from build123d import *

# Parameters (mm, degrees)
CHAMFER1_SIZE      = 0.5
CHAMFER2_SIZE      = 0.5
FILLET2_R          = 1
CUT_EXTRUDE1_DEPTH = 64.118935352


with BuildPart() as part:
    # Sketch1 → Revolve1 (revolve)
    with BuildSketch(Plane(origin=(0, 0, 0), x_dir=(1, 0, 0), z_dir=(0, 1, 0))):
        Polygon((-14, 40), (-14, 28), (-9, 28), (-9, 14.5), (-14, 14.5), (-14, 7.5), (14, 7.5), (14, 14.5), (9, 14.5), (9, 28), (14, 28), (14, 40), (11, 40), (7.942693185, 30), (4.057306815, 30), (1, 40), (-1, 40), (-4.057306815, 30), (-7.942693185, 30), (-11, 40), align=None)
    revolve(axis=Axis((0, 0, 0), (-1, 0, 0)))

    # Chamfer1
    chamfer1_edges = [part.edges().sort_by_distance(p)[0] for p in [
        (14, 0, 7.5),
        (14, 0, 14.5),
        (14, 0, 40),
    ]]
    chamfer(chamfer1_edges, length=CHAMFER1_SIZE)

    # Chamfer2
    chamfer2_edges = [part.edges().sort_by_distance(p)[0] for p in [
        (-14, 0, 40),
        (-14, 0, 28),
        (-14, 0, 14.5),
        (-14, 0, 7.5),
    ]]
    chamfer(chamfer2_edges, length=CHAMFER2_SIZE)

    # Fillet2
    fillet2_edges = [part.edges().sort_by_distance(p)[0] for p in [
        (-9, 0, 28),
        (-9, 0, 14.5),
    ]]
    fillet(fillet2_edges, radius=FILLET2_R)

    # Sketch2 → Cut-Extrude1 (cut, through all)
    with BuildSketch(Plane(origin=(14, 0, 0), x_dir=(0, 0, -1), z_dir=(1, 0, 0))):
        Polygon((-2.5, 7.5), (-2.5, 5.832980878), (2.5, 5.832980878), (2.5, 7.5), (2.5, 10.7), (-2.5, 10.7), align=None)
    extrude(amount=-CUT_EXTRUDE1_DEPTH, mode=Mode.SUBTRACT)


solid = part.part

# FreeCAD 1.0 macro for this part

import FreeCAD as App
import Part
import Sketcher
from FreeCAD import Vector
Q = App.Units.Quantity


def edges_at(feature, points):
    """Names of the edges that pass closest to the given points."""
    edges = feature.Shape.Edges
    near = lambda p: min(range(len(edges)), key=lambda i: edges[i].distToShape(Part.Vertex(*p))[0])
    return sorted({f"Edge{near(p) + 1}" for p in points})


def add_polygon(sketch, points):
    """Adds a closed chain of lines whose ends are joined by coincident constraints."""
    first, n = sketch.GeometryCount, len(points)
    for a, b in zip(points, points[1:] + points[:1]):
        sketch.addGeometry(Part.LineSegment(App.Vector(*a, 0), App.Vector(*b, 0)), False)
    for i in range(n):
        sketch.addConstraint(Sketcher.Constraint("Coincident", first + i, 2, first + (i + 1) % n, 1))

doc = App.newDocument("Part")
body = doc.addObject("PartDesign::Body", "Body")

# Sketch on XZ plane
sketch1 = doc.addObject("Sketcher::SketchObject", "Sketch")
body.addObject(sketch1)
sketch1.AttachmentSupport = (doc.XZ_Plane, [""])
sketch1.MapMode = "FlatFace"
add_polygon(sketch1, [(-14, -40), (-14, -28), (-9, -28), (-9, -14.5), (-14, -14.5), (-14, -7.5), (14, -7.5), (14, -14.5), (9, -14.5), (9, -28), (14, -28), (14, -40), (11, -40), (7.9, -30), (4.1, -30), (1, -40), (-1, -40), (-4.1, -30), (-7.9, -30), (-11, -40)])  # lines 0-19
sketch1.addConstraint(Sketcher.Constraint("Vertical", 0))
sketch1.addConstraint(Sketcher.Constraint("Horizontal", 1))
sketch1.addConstraint(Sketcher.Constraint("Vertical", 2))
sketch1.addConstraint(Sketcher.Constraint("Horizontal", 3))
sketch1.addConstraint(Sketcher.Constraint("Vertical", 4))
sketch1.addConstraint(Sketcher.Constraint("Horizontal", 5))
sketch1.addConstraint(Sketcher.Constraint("Vertical", 6))
sketch1.addConstraint(Sketcher.Constraint("Horizontal", 7))
sketch1.addConstraint(Sketcher.Constraint("Vertical", 8))
sketch1.addConstraint(Sketcher.Constraint("Horizontal", 9))
sketch1.addConstraint(Sketcher.Constraint("Vertical", 10))
sketch1.addConstraint(Sketcher.Constraint("Horizontal", 11))
sketch1.addConstraint(Sketcher.Constraint("Horizontal", 13))
sketch1.addConstraint(Sketcher.Constraint("Horizontal", 15))
sketch1.addConstraint(Sketcher.Constraint("Horizontal", 17))
sketch1.addConstraint(Sketcher.Constraint("Horizontal", 19))
sketch1.addConstraint(Sketcher.Constraint("Symmetric", 3, 2, 6, 2, -2))
sketch1.addConstraint(Sketcher.Constraint("Symmetric", 1, 2, 8, 2, -2))
sketch1.addConstraint(Sketcher.Constraint("Symmetric", 13, 2, 16, 2, -2))
sketch1.addConstraint(Sketcher.Constraint("Symmetric", 11, 2, 18, 2, -2))
sketch1.addConstraint(Sketcher.Constraint("Parallel", 12, 16))
sketch1.addConstraint(Sketcher.Constraint("Parallel", 14, 18))
sketch1.addConstraint(Sketcher.Constraint("Horizontal", 11, 2, 14, 2))
sketch1.addConstraint(Sketcher.Constraint("Vertical", 0, 2, 3, 2))
sketch1.addConstraint(Sketcher.Constraint("Vertical", 6, 2, 9, 2))
sketch1.addConstraint(Sketcher.Constraint("Equal", 13, 17))
sketch1.addConstraint(Sketcher.Constraint("DistanceX", 1, 1, 1, 2, 5.0))
sketch1.addConstraint(Sketcher.Constraint("DistanceX", 5, 1, 5, 2, 28.0))
sketch1.addConstraint(Sketcher.Constraint("DistanceX", 11, 2, 11, 1, 3.0))
sketch1.addConstraint(Sketcher.Constraint("DistanceX", 15, 2, 15, 1, 2.0))
sketch1.addConstraint(Sketcher.Constraint("DistanceY", 0, 1, 0, 2, 12.0))
sketch1.addConstraint(Sketcher.Constraint("DistanceY", 4, 1, 4, 2, 7.0))
sketch1.addConstraint(Sketcher.Constraint("Angle", 12, Q("107 deg")))
sketch1.addConstraint(Sketcher.Constraint("DistanceY", 2, 1, 2, 2, 13.5))
sketch1.addConstraint(Sketcher.Constraint("DistanceY", 0, 2, -1, 1, 28.0))
sketch1.addConstraint(Sketcher.Constraint("DistanceY", 12, 2, -1, 1, 30.0))
revolution = doc.addObject("PartDesign::Revolution", "Revolution")
body.addObject(revolution)
revolution.Profile = sketch1
revolution.ReferenceAxis = (sketch1, ["H_Axis"])
revolution.Angle = 360
doc.recompute()

chamfer = doc.addObject("PartDesign::Chamfer", "Chamfer")
body.addObject(chamfer)
chamfer.Base = (revolution, edges_at(revolution, [(14, 0, 7.5), (14, 0, 14.5), (14, 0, 40)]))
chamfer.Size = 0.5
doc.recompute()

chamfer2 = doc.addObject("PartDesign::Chamfer", "Chamfer001")
body.addObject(chamfer2)
chamfer2.Base = (chamfer, edges_at(chamfer, [
    (-14, 0, 40),
    (-14, 0, 28),
    (-14, 0, 14.5),
    (-14, 0, 7.5),
]))
chamfer2.Size = 0.5
doc.recompute()

fillet = doc.addObject("PartDesign::Fillet", "Fillet")
body.addObject(fillet)
fillet.Base = (chamfer2, edges_at(chamfer2, [(-9, 0, 28), (-9, 0, 14.5)]))
fillet.Radius = 1

# Sketch on YZ plane
sketch2 = doc.addObject("Sketcher::SketchObject", "Sketch001")
body.addObject(sketch2)
sketch2.AttachmentSupport = (doc.YZ_Plane, [""])
sketch2.MapMode = "FlatFace"
sketch2.AttachmentOffset = App.Placement(Vector(0, 0, 14), App.Rotation())
add_polygon(sketch2, [(5.8, 2.5), (5.8, -2.5), (10.7, -2.5), (10.7, 2.5)])  # lines 0-3
sketch2.addConstraint(Sketcher.Constraint("Vertical", 0))
sketch2.addConstraint(Sketcher.Constraint("Horizontal", 1))
sketch2.addConstraint(Sketcher.Constraint("Vertical", 2))
sketch2.addConstraint(Sketcher.Constraint("Horizontal", 3))
sketch2.addConstraint(Sketcher.Constraint("DistanceY", 0, 2, 0, 1, 5.0))
sketch2.addConstraint(Sketcher.Constraint("DistanceY", 0, 2, -1, 1, 2.5))
sketch2.addConstraint(Sketcher.Constraint("DistanceX", -1, 1, 1, 2, 10.7))
sketch2.addConstraint(Sketcher.Constraint("DistanceX", 1, 1, 1, 2, 4.867019))
pocket1 = doc.addObject("PartDesign::Pocket", "Pocket")
body.addObject(pocket1)
pocket1.Profile = sketch2
pocket1.Type = "ThroughAll"

doc.recompute()
